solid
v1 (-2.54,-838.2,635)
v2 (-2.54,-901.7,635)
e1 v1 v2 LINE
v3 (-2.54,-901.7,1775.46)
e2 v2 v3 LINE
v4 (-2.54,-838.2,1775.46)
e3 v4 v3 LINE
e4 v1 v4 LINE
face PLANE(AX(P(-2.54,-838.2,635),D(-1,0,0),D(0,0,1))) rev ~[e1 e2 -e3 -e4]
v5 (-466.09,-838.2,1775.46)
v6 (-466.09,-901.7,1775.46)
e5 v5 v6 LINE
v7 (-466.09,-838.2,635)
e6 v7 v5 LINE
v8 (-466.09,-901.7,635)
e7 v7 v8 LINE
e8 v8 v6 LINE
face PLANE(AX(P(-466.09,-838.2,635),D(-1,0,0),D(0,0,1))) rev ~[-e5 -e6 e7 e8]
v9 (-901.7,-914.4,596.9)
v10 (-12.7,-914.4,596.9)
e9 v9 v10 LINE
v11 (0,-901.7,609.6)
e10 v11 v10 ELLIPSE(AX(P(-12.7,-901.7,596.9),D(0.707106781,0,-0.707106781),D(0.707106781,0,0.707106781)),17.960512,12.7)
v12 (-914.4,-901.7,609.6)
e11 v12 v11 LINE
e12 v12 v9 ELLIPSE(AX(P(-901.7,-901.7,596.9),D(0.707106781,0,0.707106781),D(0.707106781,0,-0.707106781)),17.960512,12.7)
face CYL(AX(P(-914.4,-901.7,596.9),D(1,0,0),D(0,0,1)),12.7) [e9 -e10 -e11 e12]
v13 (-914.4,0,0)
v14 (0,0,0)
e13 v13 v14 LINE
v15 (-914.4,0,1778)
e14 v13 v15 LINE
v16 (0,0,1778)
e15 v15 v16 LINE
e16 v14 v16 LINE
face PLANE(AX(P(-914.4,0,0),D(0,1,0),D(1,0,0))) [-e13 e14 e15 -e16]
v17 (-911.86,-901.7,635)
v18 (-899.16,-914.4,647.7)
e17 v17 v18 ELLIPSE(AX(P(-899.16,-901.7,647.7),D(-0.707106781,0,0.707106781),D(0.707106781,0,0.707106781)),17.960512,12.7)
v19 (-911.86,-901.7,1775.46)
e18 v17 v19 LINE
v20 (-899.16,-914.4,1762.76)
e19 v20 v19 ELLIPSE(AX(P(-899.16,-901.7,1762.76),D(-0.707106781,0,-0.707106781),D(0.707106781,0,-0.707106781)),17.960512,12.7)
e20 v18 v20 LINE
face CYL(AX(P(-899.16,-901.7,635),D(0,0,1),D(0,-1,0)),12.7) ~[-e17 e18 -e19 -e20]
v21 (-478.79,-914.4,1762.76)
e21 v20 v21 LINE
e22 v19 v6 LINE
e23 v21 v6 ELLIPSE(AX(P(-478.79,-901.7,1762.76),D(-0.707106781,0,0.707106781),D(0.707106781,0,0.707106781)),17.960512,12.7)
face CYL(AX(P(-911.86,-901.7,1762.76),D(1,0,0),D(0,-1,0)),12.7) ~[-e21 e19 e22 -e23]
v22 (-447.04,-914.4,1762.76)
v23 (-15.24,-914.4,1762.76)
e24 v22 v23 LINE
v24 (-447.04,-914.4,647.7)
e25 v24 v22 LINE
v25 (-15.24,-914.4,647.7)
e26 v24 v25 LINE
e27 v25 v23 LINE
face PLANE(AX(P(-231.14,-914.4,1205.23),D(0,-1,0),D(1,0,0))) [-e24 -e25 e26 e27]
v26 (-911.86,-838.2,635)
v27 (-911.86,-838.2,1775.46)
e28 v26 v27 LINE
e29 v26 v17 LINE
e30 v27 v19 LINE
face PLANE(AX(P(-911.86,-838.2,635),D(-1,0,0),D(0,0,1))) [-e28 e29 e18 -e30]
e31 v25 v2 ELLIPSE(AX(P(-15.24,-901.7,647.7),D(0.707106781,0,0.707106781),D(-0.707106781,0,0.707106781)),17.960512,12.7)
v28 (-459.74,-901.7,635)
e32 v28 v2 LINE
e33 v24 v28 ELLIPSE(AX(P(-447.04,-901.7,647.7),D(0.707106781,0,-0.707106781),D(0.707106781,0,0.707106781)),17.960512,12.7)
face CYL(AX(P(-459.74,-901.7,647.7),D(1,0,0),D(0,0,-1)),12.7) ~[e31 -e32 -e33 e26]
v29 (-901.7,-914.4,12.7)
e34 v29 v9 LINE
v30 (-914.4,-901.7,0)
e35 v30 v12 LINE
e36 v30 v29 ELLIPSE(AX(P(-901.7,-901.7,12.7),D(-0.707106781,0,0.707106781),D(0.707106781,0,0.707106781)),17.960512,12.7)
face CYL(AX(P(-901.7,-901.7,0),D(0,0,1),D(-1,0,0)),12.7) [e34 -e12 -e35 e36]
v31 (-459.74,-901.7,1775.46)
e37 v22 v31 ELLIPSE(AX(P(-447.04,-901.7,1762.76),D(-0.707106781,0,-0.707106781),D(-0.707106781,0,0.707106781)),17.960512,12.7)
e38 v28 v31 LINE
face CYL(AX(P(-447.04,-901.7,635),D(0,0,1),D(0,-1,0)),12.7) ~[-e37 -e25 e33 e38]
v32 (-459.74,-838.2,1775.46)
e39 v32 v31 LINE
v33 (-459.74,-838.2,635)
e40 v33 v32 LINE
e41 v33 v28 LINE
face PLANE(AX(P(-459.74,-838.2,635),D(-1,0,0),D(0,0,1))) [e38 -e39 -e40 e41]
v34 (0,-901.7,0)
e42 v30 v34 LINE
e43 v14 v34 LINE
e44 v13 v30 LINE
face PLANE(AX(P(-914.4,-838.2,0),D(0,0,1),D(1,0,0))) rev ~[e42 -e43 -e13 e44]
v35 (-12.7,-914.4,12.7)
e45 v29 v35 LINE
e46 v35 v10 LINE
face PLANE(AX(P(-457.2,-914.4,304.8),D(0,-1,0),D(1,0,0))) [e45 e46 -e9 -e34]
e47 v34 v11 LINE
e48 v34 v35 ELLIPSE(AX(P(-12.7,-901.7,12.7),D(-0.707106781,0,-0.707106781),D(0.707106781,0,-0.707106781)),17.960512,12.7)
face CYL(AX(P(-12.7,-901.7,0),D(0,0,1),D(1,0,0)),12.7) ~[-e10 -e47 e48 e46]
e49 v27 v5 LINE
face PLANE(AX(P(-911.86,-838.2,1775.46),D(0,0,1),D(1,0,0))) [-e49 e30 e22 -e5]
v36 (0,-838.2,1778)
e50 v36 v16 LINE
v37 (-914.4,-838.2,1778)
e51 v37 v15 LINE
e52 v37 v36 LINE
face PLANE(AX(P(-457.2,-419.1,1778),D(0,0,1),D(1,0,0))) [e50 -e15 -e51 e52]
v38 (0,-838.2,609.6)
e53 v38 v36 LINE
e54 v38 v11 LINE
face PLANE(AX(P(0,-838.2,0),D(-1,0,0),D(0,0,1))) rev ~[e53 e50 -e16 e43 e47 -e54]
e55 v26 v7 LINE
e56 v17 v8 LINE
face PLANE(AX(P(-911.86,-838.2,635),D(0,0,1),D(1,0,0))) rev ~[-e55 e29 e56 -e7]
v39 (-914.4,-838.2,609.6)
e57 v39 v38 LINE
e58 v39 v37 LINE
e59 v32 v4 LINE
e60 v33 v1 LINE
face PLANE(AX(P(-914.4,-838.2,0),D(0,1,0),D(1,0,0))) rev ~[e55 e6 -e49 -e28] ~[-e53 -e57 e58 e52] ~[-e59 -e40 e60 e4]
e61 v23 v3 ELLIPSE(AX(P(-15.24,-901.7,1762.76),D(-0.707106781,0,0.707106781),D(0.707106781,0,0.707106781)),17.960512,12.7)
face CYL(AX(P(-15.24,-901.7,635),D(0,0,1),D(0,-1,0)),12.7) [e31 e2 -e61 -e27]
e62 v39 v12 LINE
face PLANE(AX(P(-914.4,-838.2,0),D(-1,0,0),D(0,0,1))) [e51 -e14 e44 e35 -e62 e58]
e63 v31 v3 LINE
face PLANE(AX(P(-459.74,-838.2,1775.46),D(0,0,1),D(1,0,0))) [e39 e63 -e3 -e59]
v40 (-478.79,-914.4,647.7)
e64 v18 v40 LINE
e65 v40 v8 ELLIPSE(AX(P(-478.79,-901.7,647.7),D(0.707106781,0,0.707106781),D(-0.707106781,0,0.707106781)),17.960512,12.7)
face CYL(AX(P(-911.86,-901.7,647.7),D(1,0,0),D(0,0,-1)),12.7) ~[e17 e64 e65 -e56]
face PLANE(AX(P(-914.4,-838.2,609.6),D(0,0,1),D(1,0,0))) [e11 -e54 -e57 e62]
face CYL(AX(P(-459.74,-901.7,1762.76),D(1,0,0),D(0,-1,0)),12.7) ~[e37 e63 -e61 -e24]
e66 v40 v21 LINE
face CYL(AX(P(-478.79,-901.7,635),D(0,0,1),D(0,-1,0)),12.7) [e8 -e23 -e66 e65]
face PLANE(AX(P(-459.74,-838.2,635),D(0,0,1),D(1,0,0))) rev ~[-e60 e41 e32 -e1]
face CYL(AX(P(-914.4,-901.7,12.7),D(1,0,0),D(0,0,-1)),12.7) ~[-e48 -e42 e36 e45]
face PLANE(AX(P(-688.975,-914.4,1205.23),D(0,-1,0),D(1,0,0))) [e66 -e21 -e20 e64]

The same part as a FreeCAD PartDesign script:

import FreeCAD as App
import Part
import Sketcher

V = App.Vector
Q = App.Units.Quantity


def edges_at(feature, points):
    """Names of the edges that pass closest to the given points."""
    edges = feature.Shape.Edges
    near = lambda p: min(range(len(edges)), key=lambda i: edges[i].distToShape(Part.Vertex(*p))[0])
    return sorted({f"Edge{near(p) + 1}" for p in points})


def add_polygon(sketch, points):
    """Adds a closed chain of lines whose ends are joined by coincident constraints."""
    first, n = sketch.GeometryCount, len(points)
    for a, b in zip(points, points[1:] + points[:1]):
        sketch.addGeometry(Part.LineSegment(App.Vector(*a, 0), App.Vector(*b, 0)), False)
    for i in range(n):
        sketch.addConstraint(Sketcher.Constraint("Coincident", first + i, 2, first + (i + 1) % n, 1))

doc = App.newDocument("Part")
body = doc.addObject("PartDesign::Body", "Body")

# Sketch on XY plane
sketch1 = body.newObject("Sketcher::SketchObject", "Sketch")
sketch1.AttachmentSupport = (doc.getObject("XY_Plane"), [""])
sketch1.MapMode = "FlatFace"
add_polygon(sketch1, [(-914, 0), (-914, -838), (0, -838), (0, 0)])  # lines 0-3
sketch1.addConstraint(Sketcher.Constraint("Vertical", 0))
sketch1.addConstraint(Sketcher.Constraint("Horizontal", 1))
sketch1.addConstraint(Sketcher.Constraint("Vertical", 2))
sketch1.addConstraint(Sketcher.Constraint("Horizontal", 3))
sketch1.addConstraint(Sketcher.Constraint("Coincident", 2, 2, -1, 1))
sketch1.addConstraint(Sketcher.Constraint("DistanceX", 1, 1, 1, 2, Q("36 in")))
sketch1.addConstraint(Sketcher.Constraint("DistanceY", 0, 2, 0, 1, Q("33 in")))
pad1 = body.newObject("PartDesign::Pad", "Pad")
pad1.Profile = sketch1
pad1.Length = Q("70 in")

# Sketch on XZ plane
sketch2 = body.newObject("Sketcher::SketchObject", "Sketch001")
sketch2.AttachmentSupport = (doc.getObject("XZ_Plane"), [""])
sketch2.MapMode = "FlatFace"
sketch2.AttachmentOffset = App.Placement(V(0, 0, 33 * 25.4), App.Rotation())
add_polygon(sketch2, [(-914, 610), (-914, 0), (0, 0), (0, 610)])  # lines 0-3
add_polygon(sketch2, [(-912, 1775), (-912, 635), (-466, 635), (-466, 1775)])  # lines 4-7
add_polygon(sketch2, [(-460, 1775), (-460, 635), (-3, 635), (-3, 1775)])  # lines 8-11
sketch2.addConstraint(Sketcher.Constraint("Vertical", 0))
sketch2.addConstraint(Sketcher.Constraint("Horizontal", 1))
sketch2.addConstraint(Sketcher.Constraint("Vertical", 2))
sketch2.addConstraint(Sketcher.Constraint("Horizontal", 3))
sketch2.addConstraint(Sketcher.Constraint("Vertical", 4))
sketch2.addConstraint(Sketcher.Constraint("Horizontal", 5))
sketch2.addConstraint(Sketcher.Constraint("Vertical", 6))
sketch2.addConstraint(Sketcher.Constraint("Horizontal", 7))
sketch2.addConstraint(Sketcher.Constraint("Vertical", 8))
sketch2.addConstraint(Sketcher.Constraint("Horizontal", 9))
sketch2.addConstraint(Sketcher.Constraint("Vertical", 10))
sketch2.addConstraint(Sketcher.Constraint("Horizontal", 11))
sketch2.addConstraint(Sketcher.Constraint("Coincident", 1, 2, -1, 1))
sketch2.addConstraint(Sketcher.Constraint("Horizontal", 5, 2, 8, 2))
sketch2.addConstraint(Sketcher.Constraint("Horizontal", 7, 2, 10, 2))
sketch2.addConstraint(Sketcher.Constraint("DistanceX", 1, 1, 1, 2, Q("36 in")))
sketch2.addConstraint(Sketcher.Constraint("DistanceX", 9, 1, 9, 2, Q("18 in")))
sketch2.addConstraint(Sketcher.Constraint("DistanceY", 0, 2, 0, 1, Q("24 in")))
sketch2.addConstraint(Sketcher.Constraint("DistanceY", 4, 2, 4, 1, Q("44.9 in")))
sketch2.addConstraint(Sketcher.Constraint("DistanceY", -1, 1, 4, 2, Q("25 in")))
sketch2.addConstraint(Sketcher.Constraint("DistanceX", 5, 1, 5, 2, Q("17.55 in")))
sketch2.addConstraint(Sketcher.Constraint("DistanceX", 4, 2, -1, 1, Q("35.9 in")))
sketch2.addConstraint(Sketcher.Constraint("DistanceX", 8, 2, -1, 1, Q("18.1 in")))
pad2 = body.newObject("PartDesign::Pad", "Pad001")
pad2.Profile = sketch2
pad2.Length = Q("3 in")
doc.recompute()

fillet = body.newObject("PartDesign::Fillet", "Fillet")
fillet.Base = (pad2, edges_at(pad2, [
    (-688.975, -914.4, 1775.46),
    (-466.09, -914.4, 1205.23),
    (-459.74, -914.4, 1205.23),
    (-231.14, -914.4, 1775.46),
    (-2.54, -914.4, 1205.23),
    (-231.14, -914.4, 635),
    (-688.975, -914.4, 635),
    (-911.86, -914.4, 1205.23),
    (-457.2, -914.4, 609.6),
    (-914.4, -914.4, 304.8),
    (-457.2, -914.4, 0),
    (0, -914.4, 304.8),
]))
fillet.Radius = Q("0.5 in")

doc.recompute()
